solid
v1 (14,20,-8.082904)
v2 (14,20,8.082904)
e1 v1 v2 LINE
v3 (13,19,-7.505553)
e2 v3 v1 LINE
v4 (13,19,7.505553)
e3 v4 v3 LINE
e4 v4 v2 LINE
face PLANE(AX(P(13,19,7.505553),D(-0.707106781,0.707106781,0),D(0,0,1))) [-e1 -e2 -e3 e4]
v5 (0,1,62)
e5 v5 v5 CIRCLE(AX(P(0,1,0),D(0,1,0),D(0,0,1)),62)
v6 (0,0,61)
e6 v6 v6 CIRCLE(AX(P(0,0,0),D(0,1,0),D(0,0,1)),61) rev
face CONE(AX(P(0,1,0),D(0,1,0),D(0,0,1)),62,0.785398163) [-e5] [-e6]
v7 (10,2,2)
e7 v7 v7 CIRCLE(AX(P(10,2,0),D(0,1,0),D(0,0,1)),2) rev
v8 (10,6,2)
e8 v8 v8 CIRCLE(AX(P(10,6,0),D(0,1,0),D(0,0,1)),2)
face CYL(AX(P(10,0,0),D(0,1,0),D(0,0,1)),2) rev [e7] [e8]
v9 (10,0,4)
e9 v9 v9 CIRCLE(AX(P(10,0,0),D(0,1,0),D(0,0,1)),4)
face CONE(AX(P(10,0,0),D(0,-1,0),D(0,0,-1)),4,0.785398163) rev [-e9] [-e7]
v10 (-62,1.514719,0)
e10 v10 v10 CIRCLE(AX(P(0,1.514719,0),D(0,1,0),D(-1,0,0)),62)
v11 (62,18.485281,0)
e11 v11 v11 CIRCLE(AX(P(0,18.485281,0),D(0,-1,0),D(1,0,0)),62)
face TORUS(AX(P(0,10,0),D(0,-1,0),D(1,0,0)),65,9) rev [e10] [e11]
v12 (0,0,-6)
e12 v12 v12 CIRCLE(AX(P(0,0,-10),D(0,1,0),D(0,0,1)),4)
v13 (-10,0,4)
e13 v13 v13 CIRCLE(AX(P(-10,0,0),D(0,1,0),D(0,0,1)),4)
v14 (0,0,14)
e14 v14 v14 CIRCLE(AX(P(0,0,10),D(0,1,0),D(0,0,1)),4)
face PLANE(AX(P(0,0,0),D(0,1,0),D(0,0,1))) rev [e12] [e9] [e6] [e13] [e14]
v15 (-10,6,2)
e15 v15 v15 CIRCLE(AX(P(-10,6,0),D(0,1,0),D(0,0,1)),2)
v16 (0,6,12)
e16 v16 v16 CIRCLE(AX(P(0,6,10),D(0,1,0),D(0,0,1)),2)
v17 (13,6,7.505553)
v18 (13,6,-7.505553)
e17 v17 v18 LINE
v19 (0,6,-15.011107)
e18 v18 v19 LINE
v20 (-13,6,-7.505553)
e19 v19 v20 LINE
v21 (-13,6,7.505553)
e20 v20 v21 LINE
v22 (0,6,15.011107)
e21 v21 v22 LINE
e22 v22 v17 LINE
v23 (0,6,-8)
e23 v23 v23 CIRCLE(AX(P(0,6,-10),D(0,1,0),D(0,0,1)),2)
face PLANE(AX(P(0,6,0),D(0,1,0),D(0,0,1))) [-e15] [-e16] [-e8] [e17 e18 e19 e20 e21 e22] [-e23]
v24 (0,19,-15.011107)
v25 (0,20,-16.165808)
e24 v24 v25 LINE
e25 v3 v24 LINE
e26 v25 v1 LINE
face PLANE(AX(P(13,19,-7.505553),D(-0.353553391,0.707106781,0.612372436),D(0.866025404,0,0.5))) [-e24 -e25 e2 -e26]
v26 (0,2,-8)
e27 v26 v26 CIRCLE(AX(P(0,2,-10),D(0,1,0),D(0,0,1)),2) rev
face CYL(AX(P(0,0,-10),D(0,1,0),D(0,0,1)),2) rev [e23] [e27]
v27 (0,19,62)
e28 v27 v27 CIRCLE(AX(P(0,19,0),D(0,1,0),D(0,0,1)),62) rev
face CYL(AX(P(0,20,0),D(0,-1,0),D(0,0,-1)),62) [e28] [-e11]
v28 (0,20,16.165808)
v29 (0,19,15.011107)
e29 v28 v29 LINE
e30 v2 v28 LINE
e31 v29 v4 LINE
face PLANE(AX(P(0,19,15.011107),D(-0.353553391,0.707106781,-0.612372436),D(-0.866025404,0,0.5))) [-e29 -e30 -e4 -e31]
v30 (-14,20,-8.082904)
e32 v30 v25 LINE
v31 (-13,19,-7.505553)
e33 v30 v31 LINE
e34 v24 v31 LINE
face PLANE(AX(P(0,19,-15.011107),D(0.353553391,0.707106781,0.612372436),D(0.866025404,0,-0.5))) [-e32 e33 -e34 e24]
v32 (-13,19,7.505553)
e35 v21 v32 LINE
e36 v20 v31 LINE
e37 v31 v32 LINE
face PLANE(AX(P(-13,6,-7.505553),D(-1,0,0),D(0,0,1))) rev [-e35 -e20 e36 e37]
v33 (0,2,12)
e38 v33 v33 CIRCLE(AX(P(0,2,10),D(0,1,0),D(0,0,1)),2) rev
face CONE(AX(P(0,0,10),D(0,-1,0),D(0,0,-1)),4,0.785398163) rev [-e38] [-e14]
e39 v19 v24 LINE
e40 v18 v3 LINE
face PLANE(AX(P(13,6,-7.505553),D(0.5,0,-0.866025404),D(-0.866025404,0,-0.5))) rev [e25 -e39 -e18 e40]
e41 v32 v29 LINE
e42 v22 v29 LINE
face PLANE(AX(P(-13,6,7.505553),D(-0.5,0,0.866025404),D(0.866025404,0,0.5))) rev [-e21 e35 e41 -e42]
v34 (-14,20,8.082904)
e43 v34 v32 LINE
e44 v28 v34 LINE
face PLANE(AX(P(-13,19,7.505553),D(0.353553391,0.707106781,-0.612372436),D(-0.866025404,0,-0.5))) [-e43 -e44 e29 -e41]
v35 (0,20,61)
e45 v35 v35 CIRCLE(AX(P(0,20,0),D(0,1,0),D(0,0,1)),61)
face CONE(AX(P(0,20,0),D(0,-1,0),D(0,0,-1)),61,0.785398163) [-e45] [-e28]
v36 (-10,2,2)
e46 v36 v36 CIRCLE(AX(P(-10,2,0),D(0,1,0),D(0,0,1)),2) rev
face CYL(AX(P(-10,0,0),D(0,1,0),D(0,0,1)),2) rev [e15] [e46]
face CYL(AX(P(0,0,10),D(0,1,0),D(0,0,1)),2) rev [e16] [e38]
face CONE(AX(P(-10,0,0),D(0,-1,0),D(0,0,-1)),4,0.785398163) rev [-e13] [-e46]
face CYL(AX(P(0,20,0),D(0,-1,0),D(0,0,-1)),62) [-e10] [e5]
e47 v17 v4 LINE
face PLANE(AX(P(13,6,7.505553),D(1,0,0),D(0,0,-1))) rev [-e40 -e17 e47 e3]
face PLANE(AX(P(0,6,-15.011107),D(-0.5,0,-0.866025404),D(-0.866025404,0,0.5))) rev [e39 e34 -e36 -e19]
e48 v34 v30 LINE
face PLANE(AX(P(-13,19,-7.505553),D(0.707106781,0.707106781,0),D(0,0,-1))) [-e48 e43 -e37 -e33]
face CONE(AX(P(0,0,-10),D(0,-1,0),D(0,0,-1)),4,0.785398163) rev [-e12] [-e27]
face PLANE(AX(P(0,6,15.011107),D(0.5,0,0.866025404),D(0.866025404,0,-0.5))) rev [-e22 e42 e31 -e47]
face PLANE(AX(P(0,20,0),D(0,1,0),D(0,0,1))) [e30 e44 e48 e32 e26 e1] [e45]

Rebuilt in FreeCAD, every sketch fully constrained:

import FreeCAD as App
import Part
import Sketcher
from FreeCAD import Vector
Q = App.Units.Quantity


def edges_at(feature, points):
    """Names of the edges that pass closest to the given points."""
    edges = feature.Shape.Edges
    near = lambda p: min(range(len(edges)), key=lambda i: edges[i].distToShape(Part.Vertex(*p))[0])
    return sorted({f"Edge{near(p) + 1}" for p in points})


def add_polygon(sketch, points):
    """Adds a closed chain of lines whose ends are joined by coincident constraints."""
    first, n = sketch.GeometryCount, len(points)
    for a, b in zip(points, points[1:] + points[:1]):
        sketch.addGeometry(Part.LineSegment(App.Vector(*a, 0), App.Vector(*b, 0)), False)
    for i in range(n):
        sketch.addConstraint(Sketcher.Constraint("Coincident", first + i, 2, first + (i + 1) % n, 1))

doc = App.newDocument("Part")
body = doc.addObject("PartDesign::Body", "Body")

# Sketch on XZ plane
sketch1 = doc.addObject("Sketcher::SketchObject", "Sketch")
body.addObject(sketch1)
sketch1.AttachmentSupport = (doc.XZ_Plane, [""])
sketch1.MapMode = "FlatFace"
sketch1.addGeometry(Part.Circle(Vector(0, 0, 0), Vector(0, 0, 1), 62), False)
sketch1.addConstraint([
    Sketcher.Constraint("Coincident", 0, 3, -1, 1),
    Sketcher.Constraint("Diameter", 0, 124.0),
])
pad1 = doc.addObject("PartDesign::Pad", "Pad")
body.addObject(pad1)
pad1.Profile = sketch1
pad1.Length = 20
pad1.Reversed = True

# Sketch on XY plane
sketch2 = doc.addObject("Sketcher::SketchObject", "Sketch001")
body.addObject(sketch2)
sketch2.AttachmentSupport = (doc.XY_Plane, [""])
sketch2.MapMode = "FlatFace"
sketch2.addGeometry(Part.Circle(Vector(-65, 10, 0), Vector(0, 0, 1), 9), False)
sketch2.addConstraint([
    Sketcher.Constraint("Diameter", 0, 18.0),
    Sketcher.Constraint("DistanceX", 0, 3, -1, 1, 65.0),
    Sketcher.Constraint("DistanceY", -1, 1, 0, 3, 10.0),
])
groove = doc.addObject("PartDesign::Groove", "Groove")
body.addObject(groove)
groove.Profile = sketch2
groove.ReferenceAxis = (sketch2, ["V_Axis"])
groove.Angle = 360
doc.recompute()

chamfer = doc.addObject("PartDesign::Chamfer", "Chamfer")
body.addObject(chamfer)
chamfer.Base = (groove, edges_at(groove, [(0, 0, -62)]))
chamfer.Size = 1

# Sketch on XZ plane
sketch3 = doc.addObject("Sketcher::SketchObject", "Sketch002")
body.addObject(sketch3)
sketch3.AttachmentSupport = (doc.XZ_Plane, [""])
sketch3.MapMode = "FlatFace"
sketch3.AttachmentOffset = App.Placement(Vector(0, 0, -20), App.Rotation())
add_polygon(sketch3, [(0, -15), (-13, -8), (-13, 8), (0, 15), (13, 8), (13, -8)])  # lines 0-5
sketch3.addConstraint([
    Sketcher.Constraint("Vertical", 1),
    Sketcher.Constraint("Vertical", 4),
    Sketcher.Constraint("Symmetric", 0, 2, 3, 2, -1, 1),
    Sketcher.Constraint("Symmetric", 2, 2, 5, 2, -1, 1),
    Sketcher.Constraint("PointOnObject", 2, 2, -2),
    Sketcher.Constraint("Parallel", 2, 5),
    Sketcher.Constraint("Horizontal", 1, 2, 3, 2),
    Sketcher.Constraint("Angle", 0, Q("150 deg")),
    Sketcher.Constraint("DistanceX", 0, 2, -1, 1, 13.0),
    Sketcher.Constraint("DistanceY", 1, 1, 1, 2, 15.011107),
])
pocket1 = doc.addObject("PartDesign::Pocket", "Pocket")
body.addObject(pocket1)
pocket1.Profile = sketch3
pocket1.Length = 14
pocket1.Reversed = True

# Sketch on XZ plane
sketch4 = doc.addObject("Sketcher::SketchObject", "Sketch003")
body.addObject(sketch4)
sketch4.AttachmentSupport = (doc.XZ_Plane, [""])
sketch4.MapMode = "FlatFace"
sketch4.AttachmentOffset = App.Placement(Vector(0, 0, -20), App.Rotation())
sketch4.addGeometry([
    Part.Circle(Vector(0, -10, 0), Vector(0, 0, 1), 2),
    Part.Circle(Vector(10, 0, 0), Vector(0, 0, 1), 2),
    Part.Circle(Vector(0, 10, 0), Vector(0, 0, 1), 2),
    Part.Circle(Vector(-10, 0, 0), Vector(0, 0, 1), 2),
], False)
sketch4.addConstraint([
    Sketcher.Constraint("Equal", 0, 1),
    Sketcher.Constraint("Equal", 1, 2),
    Sketcher.Constraint("Equal", 2, 3),
    Sketcher.Constraint("Symmetric", 0, 3, 2, 3, -1, 1),
    Sketcher.Constraint("Symmetric", 1, 3, 3, 3, -1, 1),
    Sketcher.Constraint("PointOnObject", 0, 3, -2),
    Sketcher.Constraint("PointOnObject", 1, 3, -1),
    Sketcher.Constraint("Diameter", 0, 4.0),
    Sketcher.Constraint("DistanceY", 0, 3, -1, 1, 10.0),
    Sketcher.Constraint("DistanceX", -1, 1, 1, 3, 10.0),
])
pocket2 = doc.addObject("PartDesign::Pocket", "Pocket001")
body.addObject(pocket2)
pocket2.Profile = sketch4
pocket2.Type = "ThroughAll"
pocket2.Reversed = True
doc.recompute()

chamfer2 = doc.addObject("PartDesign::Chamfer", "Chamfer001")
body.addObject(chamfer2)
chamfer2.Base = (pocket2, edges_at(pocket2, [
    (6.5, 20, -11.258),
    (-6.5, 20, -11.258),
    (-13, 20, 0),
    (-6.5, 20, 11.258),
    (6.5, 20, 11.258),
    (13, 20, 0),
    (0, 20, -62),
]))
chamfer2.Size = 1
doc.recompute()

chamfer3 = doc.addObject("PartDesign::Chamfer", "Chamfer002")
body.addObject(chamfer3)
chamfer3.Base = (chamfer2, edges_at(chamfer2, [
    (0, 0, -12),
    (10, 0, -2),
    (0, 0, 8),
    (-10, 0, -2),
]))
chamfer3.Size = 2

doc.recompute()
